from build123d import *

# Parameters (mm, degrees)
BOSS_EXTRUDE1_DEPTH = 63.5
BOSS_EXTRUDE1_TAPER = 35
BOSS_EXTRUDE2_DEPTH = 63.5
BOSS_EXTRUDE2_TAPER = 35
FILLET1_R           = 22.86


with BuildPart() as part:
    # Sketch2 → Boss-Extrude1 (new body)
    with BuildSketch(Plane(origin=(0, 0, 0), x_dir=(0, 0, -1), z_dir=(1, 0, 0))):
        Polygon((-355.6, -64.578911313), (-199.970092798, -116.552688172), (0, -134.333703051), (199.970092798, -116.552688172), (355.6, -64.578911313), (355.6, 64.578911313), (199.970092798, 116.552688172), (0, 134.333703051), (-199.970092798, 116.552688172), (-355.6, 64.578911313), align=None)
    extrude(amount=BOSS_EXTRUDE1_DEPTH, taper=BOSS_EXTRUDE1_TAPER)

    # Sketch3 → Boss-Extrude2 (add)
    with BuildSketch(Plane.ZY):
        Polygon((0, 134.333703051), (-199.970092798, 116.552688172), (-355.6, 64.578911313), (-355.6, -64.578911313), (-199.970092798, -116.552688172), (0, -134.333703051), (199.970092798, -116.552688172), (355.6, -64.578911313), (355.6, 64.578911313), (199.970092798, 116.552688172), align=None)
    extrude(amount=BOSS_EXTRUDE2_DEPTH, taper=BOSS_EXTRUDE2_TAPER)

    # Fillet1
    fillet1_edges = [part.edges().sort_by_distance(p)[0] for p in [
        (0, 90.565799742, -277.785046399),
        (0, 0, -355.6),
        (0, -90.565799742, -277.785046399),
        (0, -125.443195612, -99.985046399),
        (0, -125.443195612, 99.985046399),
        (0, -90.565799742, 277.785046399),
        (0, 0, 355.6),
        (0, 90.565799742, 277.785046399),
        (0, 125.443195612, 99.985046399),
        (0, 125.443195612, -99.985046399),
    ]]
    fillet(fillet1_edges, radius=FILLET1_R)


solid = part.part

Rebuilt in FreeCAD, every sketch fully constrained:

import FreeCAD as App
import Part
import Sketcher
Q = App.Units.Quantity


def edges_at(feature, points):
    """Names of the edges that pass closest to the given points."""
    edges = feature.Shape.Edges
    near = lambda p: min(range(len(edges)), key=lambda i: edges[i].distToShape(Part.Vertex(*p))[0])
    return sorted({f"Edge{near(p) + 1}" for p in points})


def add_polygon(sketch, points):
    """Adds a closed chain of lines whose ends are joined by coincident constraints."""
    first, n = sketch.GeometryCount, len(points)
    for a, b in zip(points, points[1:] + points[:1]):
        sketch.addGeometry(Part.LineSegment(App.Vector(*a, 0), App.Vector(*b, 0)), False)
    for i in range(n):
        sketch.addConstraint(Sketcher.Constraint("Coincident", first + i, 2, first + (i + 1) % n, 1))

doc = App.newDocument("Part")
params = doc.addObject("Spreadsheet::Sheet", "Params")
for row, (alias, value) in enumerate([
    ("pad1_length", "2.5 in"),
    ("pad1_taper", "-35 deg"),
    ("pad2_length", "2.5 in"),
    ("pad2_taper", "-35 deg"),
    ("fillet_radius", "0.9 in"),
], start=1):
    params.set(f"A{row}", alias)
    params.set(f"B{row}", "=" + value)
    params.setAlias(f"B{row}", alias)

body = doc.addObject("PartDesign::Body", "Body")

sketch1 = body.newObject("Sketcher::SketchObject", "Sketch")
sketch1.AttachmentSupport = (doc.getObject("YZ_Plane"), [""])
sketch1.MapMode = "FlatFace"
add_polygon(sketch1, [(-65, 356), (-117, 200), (-134, 0), (-117, -200), (-65, -356), (65, -356), (117, -200), (134, 0), (117, 200), (65, 356)])
sketch1.addConstraint([
    Sketcher.Constraint("Horizontal", 4),
    Sketcher.Constraint("Horizontal", 9),
    Sketcher.Constraint("Symmetric", 0, 2, 5, 2, -1, 1),
    Sketcher.Constraint("Symmetric", 1, 2, 6, 2, -1, 1),
    Sketcher.Constraint("Symmetric", 2, 2, 7, 2, -1, 1),
    Sketcher.Constraint("Symmetric", 3, 2, 8, 2, -1, 1),
    Sketcher.Constraint("Symmetric", 2, 2, 5, 2, -2),
    Sketcher.Constraint("PointOnObject", 1, 2, -1),
    Sketcher.Constraint("Parallel", 0, 5),
    Sketcher.Constraint("Vertical", 4, 2, 8, 2),
    Sketcher.Constraint("DistanceY", 3, 2, -1, 1, Q("14 in")),
    Sketcher.Constraint("DistanceX", 2, 2, 4, 2, Q("181.131599 mm")),
    Sketcher.Constraint("Distance", 0, Q("164.079071 mm")),
    Sketcher.Constraint("DistanceX", 4, 1, 4, 2, Q("129.157823 mm")),
    Sketcher.Constraint("DistanceX", 1, 2, 3, 2, Q("69.754792 mm")),
])
pad1 = body.newObject("PartDesign::Pad", "Pad")
pad1.Profile = sketch1
pad1.setExpression("Length", "Params.pad1_length")
pad1.setExpression("TaperAngle", "Params.pad1_taper")

sketch2 = body.newObject("Sketcher::SketchObject", "Sketch001")
sketch2.AttachmentSupport = (doc.getObject("YZ_Plane"), [""])
sketch2.MapMode = "FlatFace"
add_polygon(sketch2, [(134, 0), (117, -200), (65, -356), (-65, -356), (-117, -200), (-134, 0), (-117, 200), (-65, 356), (65, 356), (117, 200)])
sketch2.addConstraint([
    Sketcher.Constraint("Horizontal", 2),
    Sketcher.Constraint("Horizontal", 7),
    Sketcher.Constraint("Symmetric", 0, 2, 5, 2, -1, 1),
    Sketcher.Constraint("Symmetric", 1, 2, 6, 2, -1, 1),
    Sketcher.Constraint("Symmetric", 3, 2, 8, 2, -1, 1),
    Sketcher.Constraint("Symmetric", 4, 2, 9, 2, -1, 1),
    Sketcher.Constraint("Symmetric", 0, 2, 3, 2, -2),
    Sketcher.Constraint("PointOnObject", 4, 2, -1),
    Sketcher.Constraint("Parallel", 3, 8),
    Sketcher.Constraint("Vertical", 2, 2, 6, 2),
    Sketcher.Constraint("DistanceY", 1, 2, -1, 1, Q("14 in")),
    Sketcher.Constraint("DistanceX", 2, 2, 0, 2, Q("181.131599 mm")),
    Sketcher.Constraint("Distance", 1, Q("164.079071 mm")),
    Sketcher.Constraint("DistanceX", 2, 2, 2, 1, Q("129.157823 mm")),
    Sketcher.Constraint("DistanceX", 4, 2, 0, 2, Q("250.886391 mm")),
])
pad2 = body.newObject("PartDesign::Pad", "Pad001")
pad2.Profile = sketch2
pad2.setExpression("Length", "Params.pad2_length")
pad2.Reversed = True
pad2.setExpression("TaperAngle", "Params.pad2_taper")
doc.recompute()

fillet = body.newObject("PartDesign::Fillet", "Fillet")
fillet.Base = (pad2, edges_at(pad2, [
    (0, 90.566, -277.785),
    (0, 0, -355.6),
    (0, -90.566, -277.785),
    (0, -125.443, -99.985),
    (0, -125.443, 99.985),
    (0, -90.566, 277.785),
    (0, 0, 355.6),
    (0, 90.566, 277.785),
    (0, 125.443, 99.985),
    (0, 125.443, -99.985),
]))
fillet.setExpression("Radius", "Params.fillet_radius")

doc.recompute()
